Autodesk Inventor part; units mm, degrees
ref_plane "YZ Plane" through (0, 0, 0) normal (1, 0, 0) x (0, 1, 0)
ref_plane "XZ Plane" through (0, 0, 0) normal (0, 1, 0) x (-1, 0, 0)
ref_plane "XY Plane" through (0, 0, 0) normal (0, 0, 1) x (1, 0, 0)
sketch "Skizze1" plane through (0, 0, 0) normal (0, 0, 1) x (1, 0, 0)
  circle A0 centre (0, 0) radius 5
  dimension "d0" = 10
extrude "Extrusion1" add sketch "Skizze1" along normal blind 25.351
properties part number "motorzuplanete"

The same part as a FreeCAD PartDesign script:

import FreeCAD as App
import Part
import Sketcher
from FreeCAD import Vector

doc = App.newDocument("Part")
body = doc.addObject("PartDesign::Body", "Body")

# Sketch on XY plane
sketch1 = body.newObject("Sketcher::SketchObject", "Sketch")
sketch1.AttachmentSupport = (doc.getObject("XY_Plane"), [""])
sketch1.MapMode = "FlatFace"
sketch1.addGeometry(Part.Circle(Vector(0, 0, 0), Vector(0, 0, 1), 5), False)
sketch1.addConstraint(Sketcher.Constraint("Coincident", 0, 3, -1, 1))
sketch1.addConstraint(Sketcher.Constraint("Diameter", 0, 10.0))
pad1 = body.newObject("PartDesign::Pad", "Pad")
pad1.Profile = sketch1
pad1.Length = 25.351

doc.recompute()
